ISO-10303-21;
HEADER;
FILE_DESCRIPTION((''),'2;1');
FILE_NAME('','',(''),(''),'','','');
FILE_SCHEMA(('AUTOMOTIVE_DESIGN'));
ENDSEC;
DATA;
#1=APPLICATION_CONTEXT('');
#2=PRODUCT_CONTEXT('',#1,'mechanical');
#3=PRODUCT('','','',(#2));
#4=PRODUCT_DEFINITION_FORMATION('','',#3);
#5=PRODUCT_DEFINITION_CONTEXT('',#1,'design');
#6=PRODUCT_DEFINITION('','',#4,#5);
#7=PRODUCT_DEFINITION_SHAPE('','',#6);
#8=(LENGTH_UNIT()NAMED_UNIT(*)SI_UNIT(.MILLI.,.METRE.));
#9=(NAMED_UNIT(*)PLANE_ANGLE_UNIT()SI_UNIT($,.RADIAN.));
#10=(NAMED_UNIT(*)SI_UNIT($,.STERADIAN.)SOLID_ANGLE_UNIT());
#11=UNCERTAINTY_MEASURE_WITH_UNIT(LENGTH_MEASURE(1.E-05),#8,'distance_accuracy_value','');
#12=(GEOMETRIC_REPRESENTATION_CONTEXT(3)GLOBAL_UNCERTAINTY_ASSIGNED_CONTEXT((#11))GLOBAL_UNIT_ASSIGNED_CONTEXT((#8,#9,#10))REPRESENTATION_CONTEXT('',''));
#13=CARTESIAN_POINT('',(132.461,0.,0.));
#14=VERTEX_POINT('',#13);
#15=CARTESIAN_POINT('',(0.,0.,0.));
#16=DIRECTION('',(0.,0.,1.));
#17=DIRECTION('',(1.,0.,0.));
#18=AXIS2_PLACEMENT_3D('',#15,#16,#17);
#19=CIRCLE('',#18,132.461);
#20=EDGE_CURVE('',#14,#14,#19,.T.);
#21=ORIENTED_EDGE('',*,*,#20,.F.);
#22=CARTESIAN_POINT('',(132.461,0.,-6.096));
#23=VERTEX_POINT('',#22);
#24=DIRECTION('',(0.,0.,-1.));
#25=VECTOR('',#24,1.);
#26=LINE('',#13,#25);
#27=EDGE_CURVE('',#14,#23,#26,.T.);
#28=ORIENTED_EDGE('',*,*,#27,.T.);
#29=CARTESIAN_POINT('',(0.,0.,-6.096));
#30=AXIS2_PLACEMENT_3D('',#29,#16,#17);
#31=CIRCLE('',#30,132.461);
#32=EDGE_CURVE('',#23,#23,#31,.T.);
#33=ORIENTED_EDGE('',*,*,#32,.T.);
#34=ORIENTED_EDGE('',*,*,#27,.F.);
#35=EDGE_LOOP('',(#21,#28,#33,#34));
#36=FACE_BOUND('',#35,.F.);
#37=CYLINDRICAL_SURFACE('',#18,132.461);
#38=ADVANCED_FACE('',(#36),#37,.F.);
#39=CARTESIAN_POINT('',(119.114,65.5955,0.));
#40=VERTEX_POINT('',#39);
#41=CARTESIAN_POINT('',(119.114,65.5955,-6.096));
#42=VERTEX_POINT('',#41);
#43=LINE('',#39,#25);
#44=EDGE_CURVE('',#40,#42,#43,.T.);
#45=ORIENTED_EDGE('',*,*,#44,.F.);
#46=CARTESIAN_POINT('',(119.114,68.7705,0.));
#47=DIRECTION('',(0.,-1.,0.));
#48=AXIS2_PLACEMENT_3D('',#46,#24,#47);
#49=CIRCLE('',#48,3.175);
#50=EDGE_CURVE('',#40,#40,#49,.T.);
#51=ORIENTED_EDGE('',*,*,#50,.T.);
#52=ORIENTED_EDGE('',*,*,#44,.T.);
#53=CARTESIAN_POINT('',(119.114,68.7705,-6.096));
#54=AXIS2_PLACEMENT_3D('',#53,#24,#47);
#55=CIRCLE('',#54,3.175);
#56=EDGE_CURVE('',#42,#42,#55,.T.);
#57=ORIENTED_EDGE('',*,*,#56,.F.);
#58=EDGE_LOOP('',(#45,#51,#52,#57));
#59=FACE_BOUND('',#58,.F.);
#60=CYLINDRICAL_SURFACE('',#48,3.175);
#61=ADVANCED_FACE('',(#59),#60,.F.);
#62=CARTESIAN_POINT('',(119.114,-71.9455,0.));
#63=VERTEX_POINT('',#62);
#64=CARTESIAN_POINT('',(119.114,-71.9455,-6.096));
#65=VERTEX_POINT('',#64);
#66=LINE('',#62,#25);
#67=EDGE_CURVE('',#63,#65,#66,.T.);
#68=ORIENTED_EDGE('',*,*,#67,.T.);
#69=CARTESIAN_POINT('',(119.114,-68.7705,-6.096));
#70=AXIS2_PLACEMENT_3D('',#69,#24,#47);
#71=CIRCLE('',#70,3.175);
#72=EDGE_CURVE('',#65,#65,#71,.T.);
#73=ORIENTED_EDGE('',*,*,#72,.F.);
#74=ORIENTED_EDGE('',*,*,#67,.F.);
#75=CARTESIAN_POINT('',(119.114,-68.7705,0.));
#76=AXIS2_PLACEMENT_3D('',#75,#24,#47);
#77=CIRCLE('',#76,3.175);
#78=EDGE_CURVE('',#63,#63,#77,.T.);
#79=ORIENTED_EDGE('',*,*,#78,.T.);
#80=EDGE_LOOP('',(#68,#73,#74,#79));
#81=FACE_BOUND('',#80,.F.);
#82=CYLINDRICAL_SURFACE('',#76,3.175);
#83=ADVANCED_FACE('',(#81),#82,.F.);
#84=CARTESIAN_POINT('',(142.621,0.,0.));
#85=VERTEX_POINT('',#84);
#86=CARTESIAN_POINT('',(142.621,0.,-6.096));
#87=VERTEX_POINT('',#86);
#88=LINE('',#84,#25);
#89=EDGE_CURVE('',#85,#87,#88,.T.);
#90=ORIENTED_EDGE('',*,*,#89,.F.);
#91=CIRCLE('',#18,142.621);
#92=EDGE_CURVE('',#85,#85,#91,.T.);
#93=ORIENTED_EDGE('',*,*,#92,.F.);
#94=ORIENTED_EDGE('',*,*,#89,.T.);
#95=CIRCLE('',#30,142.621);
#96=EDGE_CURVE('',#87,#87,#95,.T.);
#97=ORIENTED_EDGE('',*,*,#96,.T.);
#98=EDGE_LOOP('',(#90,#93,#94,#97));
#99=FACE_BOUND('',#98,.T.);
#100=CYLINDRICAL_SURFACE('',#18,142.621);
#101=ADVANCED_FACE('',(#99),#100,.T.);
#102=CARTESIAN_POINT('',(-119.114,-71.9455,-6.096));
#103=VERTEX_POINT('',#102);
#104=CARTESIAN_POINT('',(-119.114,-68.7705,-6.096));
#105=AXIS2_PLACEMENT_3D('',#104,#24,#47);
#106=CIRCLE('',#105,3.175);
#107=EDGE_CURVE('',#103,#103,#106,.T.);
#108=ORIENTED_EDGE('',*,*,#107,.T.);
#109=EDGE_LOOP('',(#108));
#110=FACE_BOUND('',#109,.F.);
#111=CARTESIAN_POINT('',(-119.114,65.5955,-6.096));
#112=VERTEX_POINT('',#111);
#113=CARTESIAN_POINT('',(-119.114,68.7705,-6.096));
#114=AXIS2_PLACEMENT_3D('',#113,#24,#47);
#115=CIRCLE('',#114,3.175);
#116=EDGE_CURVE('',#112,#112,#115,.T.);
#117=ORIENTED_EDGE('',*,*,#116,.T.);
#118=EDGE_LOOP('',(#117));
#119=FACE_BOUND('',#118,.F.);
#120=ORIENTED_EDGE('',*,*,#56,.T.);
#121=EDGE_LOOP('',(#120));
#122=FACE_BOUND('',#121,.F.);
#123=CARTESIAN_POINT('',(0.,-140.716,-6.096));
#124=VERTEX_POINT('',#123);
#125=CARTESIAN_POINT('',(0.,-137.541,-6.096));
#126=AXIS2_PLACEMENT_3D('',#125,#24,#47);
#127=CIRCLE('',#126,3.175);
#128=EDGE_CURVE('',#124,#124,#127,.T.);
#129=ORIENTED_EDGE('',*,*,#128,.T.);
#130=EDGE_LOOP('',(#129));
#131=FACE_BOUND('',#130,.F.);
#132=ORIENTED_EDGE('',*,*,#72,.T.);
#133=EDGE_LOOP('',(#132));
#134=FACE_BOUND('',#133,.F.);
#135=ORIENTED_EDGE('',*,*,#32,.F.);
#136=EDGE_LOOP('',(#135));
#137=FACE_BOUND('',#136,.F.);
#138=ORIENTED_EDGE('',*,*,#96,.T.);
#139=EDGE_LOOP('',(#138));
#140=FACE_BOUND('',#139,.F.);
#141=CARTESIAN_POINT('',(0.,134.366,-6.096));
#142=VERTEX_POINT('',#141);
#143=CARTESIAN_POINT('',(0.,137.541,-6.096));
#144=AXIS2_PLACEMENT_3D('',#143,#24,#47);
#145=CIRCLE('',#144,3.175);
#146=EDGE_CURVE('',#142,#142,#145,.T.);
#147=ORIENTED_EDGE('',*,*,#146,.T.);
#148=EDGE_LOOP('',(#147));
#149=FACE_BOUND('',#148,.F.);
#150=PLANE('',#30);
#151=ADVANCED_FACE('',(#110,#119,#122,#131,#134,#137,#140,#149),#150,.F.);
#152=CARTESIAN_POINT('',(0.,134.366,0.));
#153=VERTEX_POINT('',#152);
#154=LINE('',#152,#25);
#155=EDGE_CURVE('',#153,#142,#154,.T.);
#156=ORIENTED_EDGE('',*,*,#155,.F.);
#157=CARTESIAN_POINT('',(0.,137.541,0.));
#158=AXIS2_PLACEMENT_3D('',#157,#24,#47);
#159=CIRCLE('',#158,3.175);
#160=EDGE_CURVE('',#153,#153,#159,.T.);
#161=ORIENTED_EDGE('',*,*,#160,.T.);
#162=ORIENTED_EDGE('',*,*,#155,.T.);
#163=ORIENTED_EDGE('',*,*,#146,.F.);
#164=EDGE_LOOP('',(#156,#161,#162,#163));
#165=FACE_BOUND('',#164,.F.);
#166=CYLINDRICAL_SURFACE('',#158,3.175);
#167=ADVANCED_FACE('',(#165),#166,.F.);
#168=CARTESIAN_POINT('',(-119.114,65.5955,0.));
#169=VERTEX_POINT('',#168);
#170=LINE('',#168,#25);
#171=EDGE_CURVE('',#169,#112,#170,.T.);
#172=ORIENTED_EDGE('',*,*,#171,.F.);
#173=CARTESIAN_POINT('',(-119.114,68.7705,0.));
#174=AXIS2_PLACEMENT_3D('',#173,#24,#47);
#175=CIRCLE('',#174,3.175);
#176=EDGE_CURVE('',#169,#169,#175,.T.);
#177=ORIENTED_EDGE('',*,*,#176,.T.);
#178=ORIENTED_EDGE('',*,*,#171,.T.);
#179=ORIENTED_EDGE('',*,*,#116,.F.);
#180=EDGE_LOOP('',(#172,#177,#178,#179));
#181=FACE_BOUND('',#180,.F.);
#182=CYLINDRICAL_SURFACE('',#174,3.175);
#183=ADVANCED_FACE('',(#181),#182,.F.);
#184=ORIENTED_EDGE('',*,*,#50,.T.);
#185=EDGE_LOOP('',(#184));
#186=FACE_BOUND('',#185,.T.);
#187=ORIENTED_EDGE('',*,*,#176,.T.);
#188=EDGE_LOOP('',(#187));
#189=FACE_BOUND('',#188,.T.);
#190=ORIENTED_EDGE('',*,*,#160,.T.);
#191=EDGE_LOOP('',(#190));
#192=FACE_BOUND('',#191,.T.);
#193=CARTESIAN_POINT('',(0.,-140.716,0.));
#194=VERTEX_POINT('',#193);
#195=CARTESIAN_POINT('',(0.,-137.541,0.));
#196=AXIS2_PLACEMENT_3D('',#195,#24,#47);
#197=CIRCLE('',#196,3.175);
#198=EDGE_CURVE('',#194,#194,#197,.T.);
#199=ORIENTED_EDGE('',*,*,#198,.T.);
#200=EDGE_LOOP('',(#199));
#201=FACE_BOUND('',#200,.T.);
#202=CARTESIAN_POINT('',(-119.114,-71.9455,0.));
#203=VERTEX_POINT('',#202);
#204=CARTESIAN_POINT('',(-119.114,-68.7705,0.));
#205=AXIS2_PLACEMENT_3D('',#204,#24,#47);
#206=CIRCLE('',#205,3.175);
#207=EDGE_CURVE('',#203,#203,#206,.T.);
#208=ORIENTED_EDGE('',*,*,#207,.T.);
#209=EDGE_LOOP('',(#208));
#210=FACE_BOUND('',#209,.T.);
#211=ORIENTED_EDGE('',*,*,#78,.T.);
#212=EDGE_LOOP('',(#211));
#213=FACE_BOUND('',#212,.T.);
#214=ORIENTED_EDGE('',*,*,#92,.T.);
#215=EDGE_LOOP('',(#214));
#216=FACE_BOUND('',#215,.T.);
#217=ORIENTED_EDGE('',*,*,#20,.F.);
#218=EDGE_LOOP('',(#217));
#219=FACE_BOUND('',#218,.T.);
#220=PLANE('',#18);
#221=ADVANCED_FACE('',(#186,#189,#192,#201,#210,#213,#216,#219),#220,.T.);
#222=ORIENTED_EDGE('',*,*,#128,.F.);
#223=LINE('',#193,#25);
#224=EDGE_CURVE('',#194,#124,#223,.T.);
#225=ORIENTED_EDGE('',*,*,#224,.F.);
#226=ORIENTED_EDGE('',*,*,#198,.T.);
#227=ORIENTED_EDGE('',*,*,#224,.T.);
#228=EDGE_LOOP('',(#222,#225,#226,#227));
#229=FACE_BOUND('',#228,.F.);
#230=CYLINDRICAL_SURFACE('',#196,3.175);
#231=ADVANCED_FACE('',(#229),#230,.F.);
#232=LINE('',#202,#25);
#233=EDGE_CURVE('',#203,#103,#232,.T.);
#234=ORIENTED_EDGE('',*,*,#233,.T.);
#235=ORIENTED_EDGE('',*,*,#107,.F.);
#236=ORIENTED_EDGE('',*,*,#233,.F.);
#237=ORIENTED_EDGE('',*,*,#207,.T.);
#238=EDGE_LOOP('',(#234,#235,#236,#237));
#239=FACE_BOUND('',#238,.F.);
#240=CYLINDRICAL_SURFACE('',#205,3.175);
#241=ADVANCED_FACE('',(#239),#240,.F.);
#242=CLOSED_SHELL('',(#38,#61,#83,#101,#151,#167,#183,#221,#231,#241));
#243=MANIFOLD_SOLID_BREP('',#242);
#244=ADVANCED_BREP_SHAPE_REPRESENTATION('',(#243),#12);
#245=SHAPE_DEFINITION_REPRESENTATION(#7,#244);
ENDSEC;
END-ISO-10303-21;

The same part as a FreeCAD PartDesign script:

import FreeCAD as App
import Part
import Sketcher
from FreeCAD import Vector
Q = App.Units.Quantity

doc = App.newDocument("Part")
body = doc.addObject("PartDesign::Body", "Body")

# Sketch on XY plane
sketch1 = body.newObject("Sketcher::SketchObject", "Sketch")
sketch1.AttachmentSupport = (doc.getObject("XY_Plane"), [""])
sketch1.MapMode = "FlatFace"
sketch1.addGeometry([
    Part.Circle(Vector(0, 0, 0), Vector(0, 0, 1), 143),
    Part.Circle(Vector(0, 0, 0), Vector(0, 0, 1), 132),
], False)
sketch1.addConstraint([
    Sketcher.Constraint("Coincident", 0, 3, -1, 1),
    Sketcher.Constraint("Coincident", 1, 3, -1, 1),
    Sketcher.Constraint("Diameter", 0, Q("11.23 in")),
    Sketcher.Constraint("Diameter", 1, Q("10.43 in")),
])
pad1 = body.newObject("PartDesign::Pad", "Pad")
pad1.Profile = sketch1
pad1.Length = Q("0.24 in")
pad1.Reversed = True

# Sketch on XY plane
sketch2 = body.newObject("Sketcher::SketchObject", "Sketch001")
sketch2.AttachmentSupport = (doc.getObject("XY_Plane"), [""])
sketch2.MapMode = "FlatFace"
sketch2.addGeometry([
    Part.Circle(Vector(0, 137.5, 0), Vector(0, 0, 1), 3.2),  # 0
    Part.Circle(Vector(-119.1, 68.8, 0), Vector(0, 0, 1), 3.2),  # 1
    Part.Circle(Vector(-119.1, -68.8, 0), Vector(0, 0, 1), 3.2),  # 2
    Part.Circle(Vector(0, -137.5, 0), Vector(0, 0, 1), 3.2),  # 3
    Part.Circle(Vector(119.1, -68.8, 0), Vector(0, 0, 1), 3.2),  # 4
    Part.Circle(Vector(119.1, 68.8, 0), Vector(0, 0, 1), 3.2),  # 5
], False)
sketch2.addConstraint([
    Sketcher.Constraint("Equal", 0, 1),
    Sketcher.Constraint("Equal", 1, 2),
    Sketcher.Constraint("Equal", 2, 3),
    Sketcher.Constraint("Equal", 3, 4),
    Sketcher.Constraint("Equal", 4, 5),
    Sketcher.Constraint("Symmetric", 0, 3, 3, 3, -1, 1),
    Sketcher.Constraint("Symmetric", 1, 3, 4, 3, -1, 1),
    Sketcher.Constraint("Symmetric", 2, 3, 5, 3, -1, 1),
    Sketcher.Constraint("Symmetric", 2, 3, 4, 3, -2),
    Sketcher.Constraint("PointOnObject", 0, 3, -2),
    Sketcher.Constraint("Diameter", 0, Q("0.25 in")),
    Sketcher.Constraint("DistanceY", 3, 3, 0, 3, Q("10.83 in")),
    Sketcher.Constraint("DistanceY", 2, 3, 1, 3, Q("5.415 in")),
    Sketcher.Constraint("DistanceX", 1, 3, -1, 1, 119.114),
])
doc.recompute()
hole = body.newObject("PartDesign::Hole", "Hole")
hole.Profile = sketch2
hole.ThreadType = "None"
hole.Diameter = Q("0.25 in")
hole.DepthType = "Dimension"
hole.Depth = Q("1 in")
hole.DrillPoint = "Angled"
hole.DrillPointAngle = 118

doc.recompute()
